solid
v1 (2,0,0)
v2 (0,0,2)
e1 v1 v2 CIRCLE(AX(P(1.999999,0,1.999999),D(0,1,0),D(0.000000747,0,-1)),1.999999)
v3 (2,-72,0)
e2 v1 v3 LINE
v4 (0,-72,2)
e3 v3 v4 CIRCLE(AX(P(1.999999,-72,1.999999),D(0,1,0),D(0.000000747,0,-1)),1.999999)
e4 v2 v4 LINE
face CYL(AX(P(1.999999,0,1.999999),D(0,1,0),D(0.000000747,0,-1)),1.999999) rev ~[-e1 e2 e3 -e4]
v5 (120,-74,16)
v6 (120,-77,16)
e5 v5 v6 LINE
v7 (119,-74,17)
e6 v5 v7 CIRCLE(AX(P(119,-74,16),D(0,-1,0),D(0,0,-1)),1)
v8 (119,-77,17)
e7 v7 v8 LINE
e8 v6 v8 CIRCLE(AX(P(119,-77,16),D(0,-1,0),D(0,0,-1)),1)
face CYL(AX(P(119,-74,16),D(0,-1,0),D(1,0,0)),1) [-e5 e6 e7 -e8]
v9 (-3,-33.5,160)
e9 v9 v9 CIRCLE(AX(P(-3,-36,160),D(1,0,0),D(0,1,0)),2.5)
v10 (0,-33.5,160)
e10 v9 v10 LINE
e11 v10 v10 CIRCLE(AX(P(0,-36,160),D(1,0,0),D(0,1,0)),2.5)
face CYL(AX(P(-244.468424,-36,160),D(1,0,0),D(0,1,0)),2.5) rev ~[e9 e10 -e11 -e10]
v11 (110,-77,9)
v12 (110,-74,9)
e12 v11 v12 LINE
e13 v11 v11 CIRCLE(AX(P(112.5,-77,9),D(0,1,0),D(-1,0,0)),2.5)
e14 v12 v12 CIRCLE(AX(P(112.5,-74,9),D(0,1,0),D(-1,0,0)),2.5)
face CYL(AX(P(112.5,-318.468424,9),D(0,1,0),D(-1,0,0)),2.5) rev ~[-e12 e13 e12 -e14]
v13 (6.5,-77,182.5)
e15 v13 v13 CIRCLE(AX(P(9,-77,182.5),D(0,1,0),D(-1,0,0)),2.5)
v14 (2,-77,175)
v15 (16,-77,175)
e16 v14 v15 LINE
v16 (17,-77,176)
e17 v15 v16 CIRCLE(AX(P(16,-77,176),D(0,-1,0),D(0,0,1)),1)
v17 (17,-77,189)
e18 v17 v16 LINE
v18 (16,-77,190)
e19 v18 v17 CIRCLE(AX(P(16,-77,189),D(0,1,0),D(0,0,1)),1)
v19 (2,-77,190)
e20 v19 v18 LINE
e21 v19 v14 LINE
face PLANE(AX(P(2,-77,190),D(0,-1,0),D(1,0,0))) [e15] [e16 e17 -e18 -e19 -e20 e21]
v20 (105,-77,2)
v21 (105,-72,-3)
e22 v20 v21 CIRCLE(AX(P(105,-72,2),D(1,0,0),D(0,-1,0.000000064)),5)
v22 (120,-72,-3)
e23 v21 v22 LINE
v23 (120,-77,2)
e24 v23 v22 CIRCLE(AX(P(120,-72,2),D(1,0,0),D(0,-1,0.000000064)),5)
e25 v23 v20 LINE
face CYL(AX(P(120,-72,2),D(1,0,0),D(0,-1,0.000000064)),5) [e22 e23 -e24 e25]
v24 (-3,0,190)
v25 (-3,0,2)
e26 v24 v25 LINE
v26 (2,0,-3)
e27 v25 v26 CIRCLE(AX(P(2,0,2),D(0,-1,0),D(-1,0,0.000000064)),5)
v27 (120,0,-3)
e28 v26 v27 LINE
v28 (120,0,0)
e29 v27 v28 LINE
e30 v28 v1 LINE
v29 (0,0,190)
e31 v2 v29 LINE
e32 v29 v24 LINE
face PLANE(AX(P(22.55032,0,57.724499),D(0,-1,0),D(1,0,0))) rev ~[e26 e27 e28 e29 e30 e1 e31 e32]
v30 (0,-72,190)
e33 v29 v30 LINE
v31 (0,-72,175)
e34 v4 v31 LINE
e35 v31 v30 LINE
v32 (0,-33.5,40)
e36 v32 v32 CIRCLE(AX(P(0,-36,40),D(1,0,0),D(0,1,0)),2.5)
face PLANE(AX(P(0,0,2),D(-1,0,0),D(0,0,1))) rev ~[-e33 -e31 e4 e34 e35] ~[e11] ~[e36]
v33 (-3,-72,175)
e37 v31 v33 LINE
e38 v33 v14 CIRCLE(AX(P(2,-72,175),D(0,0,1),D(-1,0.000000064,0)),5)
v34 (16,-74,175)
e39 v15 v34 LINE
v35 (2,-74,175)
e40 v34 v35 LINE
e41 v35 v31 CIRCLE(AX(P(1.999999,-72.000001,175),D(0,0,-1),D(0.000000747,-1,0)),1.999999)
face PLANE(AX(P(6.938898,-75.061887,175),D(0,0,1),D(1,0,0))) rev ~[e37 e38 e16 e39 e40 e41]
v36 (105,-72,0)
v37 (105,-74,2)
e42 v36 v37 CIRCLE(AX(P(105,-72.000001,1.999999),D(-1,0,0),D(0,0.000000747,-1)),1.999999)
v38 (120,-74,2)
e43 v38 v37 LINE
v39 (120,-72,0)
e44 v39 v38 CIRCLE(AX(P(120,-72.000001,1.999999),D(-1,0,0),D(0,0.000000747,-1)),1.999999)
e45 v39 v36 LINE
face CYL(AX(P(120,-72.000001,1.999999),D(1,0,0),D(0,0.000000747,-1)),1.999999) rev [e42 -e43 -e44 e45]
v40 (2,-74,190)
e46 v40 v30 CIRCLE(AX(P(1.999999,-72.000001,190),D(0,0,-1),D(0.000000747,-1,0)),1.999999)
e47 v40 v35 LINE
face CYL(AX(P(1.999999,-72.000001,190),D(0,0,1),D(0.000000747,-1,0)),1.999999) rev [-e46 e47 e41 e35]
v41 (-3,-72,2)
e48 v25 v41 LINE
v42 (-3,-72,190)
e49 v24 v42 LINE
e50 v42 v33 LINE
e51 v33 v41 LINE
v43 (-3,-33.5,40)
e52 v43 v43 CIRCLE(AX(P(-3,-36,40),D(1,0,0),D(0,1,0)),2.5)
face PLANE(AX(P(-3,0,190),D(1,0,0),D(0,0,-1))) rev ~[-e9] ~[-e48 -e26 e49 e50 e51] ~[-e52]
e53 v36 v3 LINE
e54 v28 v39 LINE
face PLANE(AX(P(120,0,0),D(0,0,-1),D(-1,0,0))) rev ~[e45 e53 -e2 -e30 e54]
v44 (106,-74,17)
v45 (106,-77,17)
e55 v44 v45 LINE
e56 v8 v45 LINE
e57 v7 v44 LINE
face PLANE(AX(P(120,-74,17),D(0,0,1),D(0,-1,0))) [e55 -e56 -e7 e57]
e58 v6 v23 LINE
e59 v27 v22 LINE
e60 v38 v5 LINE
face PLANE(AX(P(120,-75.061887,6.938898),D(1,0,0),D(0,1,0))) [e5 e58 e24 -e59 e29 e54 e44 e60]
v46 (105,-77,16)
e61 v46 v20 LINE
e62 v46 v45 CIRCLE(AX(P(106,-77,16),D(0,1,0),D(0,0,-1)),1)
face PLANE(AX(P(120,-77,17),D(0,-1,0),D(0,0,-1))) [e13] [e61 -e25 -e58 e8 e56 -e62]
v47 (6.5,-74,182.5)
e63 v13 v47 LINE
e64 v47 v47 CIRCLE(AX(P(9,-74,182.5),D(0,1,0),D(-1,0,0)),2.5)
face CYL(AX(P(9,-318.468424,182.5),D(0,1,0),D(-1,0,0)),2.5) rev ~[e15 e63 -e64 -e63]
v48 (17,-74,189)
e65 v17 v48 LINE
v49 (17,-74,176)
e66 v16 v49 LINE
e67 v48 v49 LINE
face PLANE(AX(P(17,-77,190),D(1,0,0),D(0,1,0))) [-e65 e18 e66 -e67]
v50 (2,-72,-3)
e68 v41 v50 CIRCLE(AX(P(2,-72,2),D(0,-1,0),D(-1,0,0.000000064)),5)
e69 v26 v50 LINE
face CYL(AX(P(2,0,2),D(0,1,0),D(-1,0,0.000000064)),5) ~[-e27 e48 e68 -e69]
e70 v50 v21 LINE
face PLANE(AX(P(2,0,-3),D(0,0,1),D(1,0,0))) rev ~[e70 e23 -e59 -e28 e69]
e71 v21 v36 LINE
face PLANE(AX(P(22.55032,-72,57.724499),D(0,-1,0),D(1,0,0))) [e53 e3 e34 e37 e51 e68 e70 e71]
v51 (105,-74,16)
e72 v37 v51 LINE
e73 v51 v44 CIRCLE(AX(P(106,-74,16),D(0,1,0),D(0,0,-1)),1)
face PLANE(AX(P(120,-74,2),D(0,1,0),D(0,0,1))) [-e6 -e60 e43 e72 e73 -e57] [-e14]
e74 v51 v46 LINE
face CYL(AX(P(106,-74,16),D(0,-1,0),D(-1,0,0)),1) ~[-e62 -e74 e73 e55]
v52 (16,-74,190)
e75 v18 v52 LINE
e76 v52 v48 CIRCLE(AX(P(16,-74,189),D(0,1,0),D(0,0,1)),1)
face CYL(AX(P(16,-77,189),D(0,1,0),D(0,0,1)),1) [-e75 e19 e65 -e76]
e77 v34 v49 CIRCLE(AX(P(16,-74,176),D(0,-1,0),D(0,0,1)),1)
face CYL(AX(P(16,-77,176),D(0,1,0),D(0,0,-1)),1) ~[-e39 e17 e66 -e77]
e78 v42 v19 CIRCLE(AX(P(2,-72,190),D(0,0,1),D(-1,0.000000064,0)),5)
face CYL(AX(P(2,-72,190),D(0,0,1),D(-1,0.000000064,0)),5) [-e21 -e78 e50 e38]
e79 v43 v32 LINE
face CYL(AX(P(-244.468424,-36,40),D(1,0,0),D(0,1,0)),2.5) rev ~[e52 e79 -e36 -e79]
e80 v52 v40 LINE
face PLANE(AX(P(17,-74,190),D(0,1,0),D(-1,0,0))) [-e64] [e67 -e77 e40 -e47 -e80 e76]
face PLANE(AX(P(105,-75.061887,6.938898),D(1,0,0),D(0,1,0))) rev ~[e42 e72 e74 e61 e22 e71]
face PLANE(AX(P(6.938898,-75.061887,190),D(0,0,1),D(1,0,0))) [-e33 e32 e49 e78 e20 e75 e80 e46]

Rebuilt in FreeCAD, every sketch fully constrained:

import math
import FreeCAD as App
import Part
import Sketcher
from FreeCAD import Vector
Q = App.Units.Quantity


def edges_at(feature, points):
    """Names of the edges that pass closest to the given points."""
    edges = feature.Shape.Edges
    near = lambda p: min(range(len(edges)), key=lambda i: edges[i].distToShape(Part.Vertex(*p))[0])
    return sorted({f"Edge{near(p) + 1}" for p in points})

doc = App.newDocument("Part")
params = doc.addObject("Spreadsheet::Sheet", "Params")
for row, (alias, value) in enumerate([
    ("sketch1_radius", "5 mm"),
    ("sketch1_radius2", "1.999999 mm"),
    ("sketch1_width", "118 mm"),
    ("sketch1_height", "188 mm"),
    ("pad1_length", "72 mm"),
    ("sketch2_radius", "1.999999 mm"),
    ("sketch2_radius2", "5 mm"),
    ("sketch2_width", "15 mm"),
    ("pad2_length", "15 mm"),
    ("sketch3_radius", "1.999999 mm"),
    ("sketch3_radius2", "5 mm"),
    ("sketch3_height", "15 mm"),
    ("pad3_length", "15 mm"),
    ("fillet_radius", "1 mm"),
    ("sketch4_diameter", "5 mm"),
    ("hole_diameter", "5 mm"),
    ("sketch5_diameter", "5 mm"),
    ("hole2_diameter", "5 mm"),
], start=1):
    params.set(f"A{row}", alias)
    params.set(f"B{row}", "=" + value)
    params.setAlias(f"B{row}", alias)

body = doc.addObject("PartDesign::Body", "Body")

# Sketch on XZ plane
sketch1 = doc.addObject("Sketcher::SketchObject", "Sketch")
body.addObject(sketch1)
sketch1.AttachmentSupport = (doc.XZ_Plane, [""])
sketch1.MapMode = "FlatFace"
sketch1.addGeometry([
    Part.LineSegment(Vector(0, 2, 0), Vector(0, 190, 0)),  # 0
    Part.LineSegment(Vector(0, 190, 0), Vector(-3, 190, 0)),  # 1
    Part.LineSegment(Vector(-3, 190, 0), Vector(-3, 2, 0)),  # 2
    Part.ArcOfCircle(Part.Circle(Vector(2, 2, 0), Vector(0, 0, 1), 5), math.radians(179.999996), math.radians(270.000004)),  # 3
    Part.LineSegment(Vector(2, -3, 0), Vector(120, -3, 0)),  # 4
    Part.LineSegment(Vector(120, -3, 0), Vector(120, 0, 0)),  # 5
    Part.LineSegment(Vector(120, 0, 0), Vector(2, 0, 0)),  # 6
    Part.ArcOfCircle(Part.Circle(Vector(1.999999, 1.999999, 0), Vector(0, 0, 1), 1.999999), math.radians(179.999957), math.radians(270.000043)),  # 7
], False)
sketch1.addConstraint([
    Sketcher.Constraint("Coincident", 0, 2, 1, 1),
    Sketcher.Constraint("Coincident", 1, 2, 2, 1),
    Sketcher.Constraint("Tangent", 2, 2, 3, 1),
    Sketcher.Constraint("Tangent", 3, 2, 4, 1),
    Sketcher.Constraint("Coincident", 4, 2, 5, 1),
    Sketcher.Constraint("Coincident", 5, 2, 6, 1),
    Sketcher.Constraint("Tangent", 6, 2, 7, 2),
    Sketcher.Constraint("Tangent", 7, 1, 0, 1),
    Sketcher.Constraint("Vertical", 0),
    Sketcher.Constraint("Horizontal", 1),
    Sketcher.Constraint("Vertical", 2),
    Sketcher.Constraint("Horizontal", 4),
    Sketcher.Constraint("Vertical", 5),
    Sketcher.Constraint("Horizontal", 6),
    Sketcher.Constraint("Coincident", 7, 3, 3, 3),
    Sketcher.Constraint("PointOnObject", 0, 2, -2),
    Sketcher.Constraint("PointOnObject", 5, 2, -1),
    Sketcher.Constraint("Radius", 3, Q("5 mm")),
    Sketcher.Constraint("Radius", 7, Q("1.999999 mm")),
    Sketcher.Constraint("DistanceX", 4, 1, 4, 2, Q("118 mm")),
    Sketcher.Constraint("DistanceY", 0, 1, 0, 2, Q("188 mm")),
])
sketch1.setExpression("Constraints[17]", "Params.sketch1_radius")
sketch1.setExpression("Constraints[18]", "Params.sketch1_radius2")
sketch1.setExpression("Constraints[19]", "Params.sketch1_width")
sketch1.setExpression("Constraints[20]", "Params.sketch1_height")
pad1 = doc.addObject("PartDesign::Pad", "Pad")
body.addObject(pad1)
pad1.Profile = sketch1
pad1.setExpression("Length", "Params.pad1_length")

# Sketch on XY plane
sketch2 = doc.addObject("Sketcher::SketchObject", "Sketch001")
body.addObject(sketch2)
sketch2.AttachmentSupport = (doc.XY_Plane, [""])
sketch2.MapMode = "FlatFace"
sketch2.AttachmentOffset = App.Placement(Vector(0, 0, 190), App.Rotation())
sketch2.addGeometry([
    Part.ArcOfCircle(Part.Circle(Vector(1.999999, -72.000001, 0), Vector(0, 0, 1), 1.999999), math.radians(179.999957), math.radians(270.000043)),  # 0
    Part.LineSegment(Vector(0, -72, 0), Vector(-3, -72, 0)),  # 1
    Part.ArcOfCircle(Part.Circle(Vector(2, -72, 0), Vector(0, 0, 1), 5), math.radians(179.999996), math.radians(270.000004)),  # 2
    Part.LineSegment(Vector(2, -77, 0), Vector(17, -77, 0)),  # 3
    Part.LineSegment(Vector(17, -77, 0), Vector(17, -74, 0)),  # 4
    Part.LineSegment(Vector(17, -74, 0), Vector(2, -74, 0)),  # 5
], False)
sketch2.addConstraint([
    Sketcher.Constraint("Coincident", 0, 1, 1, 1),
    Sketcher.Constraint("Coincident", 1, 2, 2, 1),
    Sketcher.Constraint("Tangent", 2, 2, 3, 1),
    Sketcher.Constraint("Coincident", 3, 2, 4, 1),
    Sketcher.Constraint("Coincident", 4, 2, 5, 1),
    Sketcher.Constraint("Tangent", 5, 2, 0, 2),
    Sketcher.Constraint("Horizontal", 1),
    Sketcher.Constraint("Horizontal", 3),
    Sketcher.Constraint("Vertical", 4),
    Sketcher.Constraint("Horizontal", 5),
    Sketcher.Constraint("Coincident", 2, 3, 0, 3),
    Sketcher.Constraint("PointOnObject", 0, 1, -2),
    Sketcher.Constraint("Horizontal", 2, 3, 0, 1),
    Sketcher.Constraint("Radius", 0, Q("1.999999 mm")),
    Sketcher.Constraint("Radius", 2, Q("5 mm")),
    Sketcher.Constraint("DistanceX", 3, 1, 3, 2, Q("15 mm")),
    Sketcher.Constraint("DistanceY", 0, 3, -1, 1, Q("72.000001 mm")),
])
sketch2.setExpression("Constraints[13]", "Params.sketch2_radius")
sketch2.setExpression("Constraints[14]", "Params.sketch2_radius2")
sketch2.setExpression("Constraints[15]", "Params.sketch2_width")
pad2 = doc.addObject("PartDesign::Pad", "Pad001")
body.addObject(pad2)
pad2.Profile = sketch2
pad2.setExpression("Length", "Params.pad2_length")
pad2.Reversed = True

# Sketch on YZ plane
sketch3 = doc.addObject("Sketcher::SketchObject", "Sketch002")
body.addObject(sketch3)
sketch3.AttachmentSupport = (doc.YZ_Plane, [""])
sketch3.MapMode = "FlatFace"
sketch3.AttachmentOffset = App.Placement(Vector(0, 0, 120), App.Rotation())
sketch3.addGeometry([
    Part.ArcOfCircle(Part.Circle(Vector(-72.000001, 1.999999, 0), Vector(0, 0, 1), 1.999999), math.radians(179.999957), math.radians(270.000043)),  # 0
    Part.LineSegment(Vector(-74, 2, 0), Vector(-74, 17, 0)),  # 1
    Part.LineSegment(Vector(-74, 17, 0), Vector(-77, 17, 0)),  # 2
    Part.LineSegment(Vector(-77, 17, 0), Vector(-77, 2, 0)),  # 3
    Part.ArcOfCircle(Part.Circle(Vector(-72, 2, 0), Vector(0, 0, 1), 5), math.radians(179.999996), math.radians(270.000004)),  # 4
    Part.LineSegment(Vector(-72, -3, 0), Vector(-72, 0, 0)),  # 5
], False)
sketch3.addConstraint([
    Sketcher.Constraint("Tangent", 0, 1, 1, 1),
    Sketcher.Constraint("Coincident", 1, 2, 2, 1),
    Sketcher.Constraint("Coincident", 2, 2, 3, 1),
    Sketcher.Constraint("Tangent", 3, 2, 4, 1),
    Sketcher.Constraint("Coincident", 4, 2, 5, 1),
    Sketcher.Constraint("Coincident", 5, 2, 0, 2),
    Sketcher.Constraint("Vertical", 1),
    Sketcher.Constraint("Horizontal", 2),
    Sketcher.Constraint("Vertical", 3),
    Sketcher.Constraint("Vertical", 5),
    Sketcher.Constraint("Coincident", 4, 3, 0, 3),
    Sketcher.Constraint("PointOnObject", 5, 2, -1),
    Sketcher.Constraint("Vertical", 0, 3, 4, 2),
    Sketcher.Constraint("Radius", 0, Q("1.999999 mm")),
    Sketcher.Constraint("Radius", 4, Q("5 mm")),
    Sketcher.Constraint("DistanceY", 1, 1, 1, 2, Q("15 mm")),
    Sketcher.Constraint("DistanceX", 0, 3, -1, 1, Q("72.000001 mm")),
])
sketch3.setExpression("Constraints[13]", "Params.sketch3_radius")
sketch3.setExpression("Constraints[14]", "Params.sketch3_radius2")
sketch3.setExpression("Constraints[15]", "Params.sketch3_height")
pad3 = doc.addObject("PartDesign::Pad", "Pad002")
body.addObject(pad3)
pad3.Profile = sketch3
pad3.setExpression("Length", "Params.pad3_length")
pad3.Reversed = True
doc.recompute()

fillet = doc.addObject("PartDesign::Fillet", "Fillet")
body.addObject(fillet)
fillet.Base = (pad3, edges_at(pad3, [
    (120, -75.5, 17),
    (105, -75.5, 17),
    (17, -75.5, 190),
    (17, -75.5, 175),
]))
fillet.setExpression("Radius", "Params.fillet_radius")

# Sketch on XZ plane
sketch4 = doc.addObject("Sketcher::SketchObject", "Sketch003")
body.addObject(sketch4)
sketch4.AttachmentSupport = (doc.XZ_Plane, [""])
sketch4.MapMode = "FlatFace"
sketch4.AttachmentOffset = App.Placement(Vector(0, 0, 77), App.Rotation())
sketch4.addGeometry([
    Part.Circle(Vector(9, 182.5, 0), Vector(0, 0, 1), 2.5),
    Part.Circle(Vector(112.5, 9, 0), Vector(0, 0, 1), 2.5),
], False)
sketch4.addConstraint([
    Sketcher.Constraint("Equal", 0, 1),
    Sketcher.Constraint("Diameter", 0, Q("5 mm")),
    Sketcher.Constraint("DistanceX", -1, 1, 0, 3, Q("9 mm")),
    Sketcher.Constraint("DistanceY", -1, 1, 1, 3, Q("9 mm")),
    Sketcher.Constraint("DistanceY", -1, 1, 0, 3, Q("182.5 mm")),
    Sketcher.Constraint("DistanceX", -1, 1, 1, 3, Q("112.5 mm")),
])
sketch4.setExpression("Constraints[1]", "Params.sketch4_diameter")
doc.recompute()
hole = doc.addObject("PartDesign::Hole", "Hole")
body.addObject(hole)
hole.Profile = sketch4
hole.ThreadType = "None"
hole.setExpression("Diameter", "Params.hole_diameter")
hole.DepthType = "ThroughAll"

# Sketch on YZ plane
sketch5 = doc.addObject("Sketcher::SketchObject", "Sketch004")
body.addObject(sketch5)
sketch5.AttachmentSupport = (doc.YZ_Plane, [""])
sketch5.MapMode = "FlatFace"
sketch5.AttachmentOffset = App.Placement(Vector(0, 0, -3), App.Rotation())
sketch5.addGeometry([
    Part.Circle(Vector(-36, 160, 0), Vector(0, 0, 1), 2.5),
    Part.Circle(Vector(-36, 40, 0), Vector(0, 0, 1), 2.5),
], False)
sketch5.addConstraint([
    Sketcher.Constraint("Equal", 0, 1),
    Sketcher.Constraint("Vertical", 0, 3, 1, 3),
    Sketcher.Constraint("Diameter", 0, Q("5 mm")),
    Sketcher.Constraint("DistanceX", 0, 3, -1, 1, Q("36 mm")),
    Sketcher.Constraint("DistanceY", -1, 1, 0, 3, Q("160 mm")),
    Sketcher.Constraint("DistanceY", -1, 1, 1, 3, Q("40 mm")),
])
sketch5.setExpression("Constraints[2]", "Params.sketch5_diameter")
doc.recompute()
hole2 = doc.addObject("PartDesign::Hole", "Hole001")
body.addObject(hole2)
hole2.Profile = sketch5
hole2.ThreadType = "None"
hole2.setExpression("Diameter", "Params.hole2_diameter")
hole2.DepthType = "ThroughAll"
hole2.Reversed = True

doc.recompute()
